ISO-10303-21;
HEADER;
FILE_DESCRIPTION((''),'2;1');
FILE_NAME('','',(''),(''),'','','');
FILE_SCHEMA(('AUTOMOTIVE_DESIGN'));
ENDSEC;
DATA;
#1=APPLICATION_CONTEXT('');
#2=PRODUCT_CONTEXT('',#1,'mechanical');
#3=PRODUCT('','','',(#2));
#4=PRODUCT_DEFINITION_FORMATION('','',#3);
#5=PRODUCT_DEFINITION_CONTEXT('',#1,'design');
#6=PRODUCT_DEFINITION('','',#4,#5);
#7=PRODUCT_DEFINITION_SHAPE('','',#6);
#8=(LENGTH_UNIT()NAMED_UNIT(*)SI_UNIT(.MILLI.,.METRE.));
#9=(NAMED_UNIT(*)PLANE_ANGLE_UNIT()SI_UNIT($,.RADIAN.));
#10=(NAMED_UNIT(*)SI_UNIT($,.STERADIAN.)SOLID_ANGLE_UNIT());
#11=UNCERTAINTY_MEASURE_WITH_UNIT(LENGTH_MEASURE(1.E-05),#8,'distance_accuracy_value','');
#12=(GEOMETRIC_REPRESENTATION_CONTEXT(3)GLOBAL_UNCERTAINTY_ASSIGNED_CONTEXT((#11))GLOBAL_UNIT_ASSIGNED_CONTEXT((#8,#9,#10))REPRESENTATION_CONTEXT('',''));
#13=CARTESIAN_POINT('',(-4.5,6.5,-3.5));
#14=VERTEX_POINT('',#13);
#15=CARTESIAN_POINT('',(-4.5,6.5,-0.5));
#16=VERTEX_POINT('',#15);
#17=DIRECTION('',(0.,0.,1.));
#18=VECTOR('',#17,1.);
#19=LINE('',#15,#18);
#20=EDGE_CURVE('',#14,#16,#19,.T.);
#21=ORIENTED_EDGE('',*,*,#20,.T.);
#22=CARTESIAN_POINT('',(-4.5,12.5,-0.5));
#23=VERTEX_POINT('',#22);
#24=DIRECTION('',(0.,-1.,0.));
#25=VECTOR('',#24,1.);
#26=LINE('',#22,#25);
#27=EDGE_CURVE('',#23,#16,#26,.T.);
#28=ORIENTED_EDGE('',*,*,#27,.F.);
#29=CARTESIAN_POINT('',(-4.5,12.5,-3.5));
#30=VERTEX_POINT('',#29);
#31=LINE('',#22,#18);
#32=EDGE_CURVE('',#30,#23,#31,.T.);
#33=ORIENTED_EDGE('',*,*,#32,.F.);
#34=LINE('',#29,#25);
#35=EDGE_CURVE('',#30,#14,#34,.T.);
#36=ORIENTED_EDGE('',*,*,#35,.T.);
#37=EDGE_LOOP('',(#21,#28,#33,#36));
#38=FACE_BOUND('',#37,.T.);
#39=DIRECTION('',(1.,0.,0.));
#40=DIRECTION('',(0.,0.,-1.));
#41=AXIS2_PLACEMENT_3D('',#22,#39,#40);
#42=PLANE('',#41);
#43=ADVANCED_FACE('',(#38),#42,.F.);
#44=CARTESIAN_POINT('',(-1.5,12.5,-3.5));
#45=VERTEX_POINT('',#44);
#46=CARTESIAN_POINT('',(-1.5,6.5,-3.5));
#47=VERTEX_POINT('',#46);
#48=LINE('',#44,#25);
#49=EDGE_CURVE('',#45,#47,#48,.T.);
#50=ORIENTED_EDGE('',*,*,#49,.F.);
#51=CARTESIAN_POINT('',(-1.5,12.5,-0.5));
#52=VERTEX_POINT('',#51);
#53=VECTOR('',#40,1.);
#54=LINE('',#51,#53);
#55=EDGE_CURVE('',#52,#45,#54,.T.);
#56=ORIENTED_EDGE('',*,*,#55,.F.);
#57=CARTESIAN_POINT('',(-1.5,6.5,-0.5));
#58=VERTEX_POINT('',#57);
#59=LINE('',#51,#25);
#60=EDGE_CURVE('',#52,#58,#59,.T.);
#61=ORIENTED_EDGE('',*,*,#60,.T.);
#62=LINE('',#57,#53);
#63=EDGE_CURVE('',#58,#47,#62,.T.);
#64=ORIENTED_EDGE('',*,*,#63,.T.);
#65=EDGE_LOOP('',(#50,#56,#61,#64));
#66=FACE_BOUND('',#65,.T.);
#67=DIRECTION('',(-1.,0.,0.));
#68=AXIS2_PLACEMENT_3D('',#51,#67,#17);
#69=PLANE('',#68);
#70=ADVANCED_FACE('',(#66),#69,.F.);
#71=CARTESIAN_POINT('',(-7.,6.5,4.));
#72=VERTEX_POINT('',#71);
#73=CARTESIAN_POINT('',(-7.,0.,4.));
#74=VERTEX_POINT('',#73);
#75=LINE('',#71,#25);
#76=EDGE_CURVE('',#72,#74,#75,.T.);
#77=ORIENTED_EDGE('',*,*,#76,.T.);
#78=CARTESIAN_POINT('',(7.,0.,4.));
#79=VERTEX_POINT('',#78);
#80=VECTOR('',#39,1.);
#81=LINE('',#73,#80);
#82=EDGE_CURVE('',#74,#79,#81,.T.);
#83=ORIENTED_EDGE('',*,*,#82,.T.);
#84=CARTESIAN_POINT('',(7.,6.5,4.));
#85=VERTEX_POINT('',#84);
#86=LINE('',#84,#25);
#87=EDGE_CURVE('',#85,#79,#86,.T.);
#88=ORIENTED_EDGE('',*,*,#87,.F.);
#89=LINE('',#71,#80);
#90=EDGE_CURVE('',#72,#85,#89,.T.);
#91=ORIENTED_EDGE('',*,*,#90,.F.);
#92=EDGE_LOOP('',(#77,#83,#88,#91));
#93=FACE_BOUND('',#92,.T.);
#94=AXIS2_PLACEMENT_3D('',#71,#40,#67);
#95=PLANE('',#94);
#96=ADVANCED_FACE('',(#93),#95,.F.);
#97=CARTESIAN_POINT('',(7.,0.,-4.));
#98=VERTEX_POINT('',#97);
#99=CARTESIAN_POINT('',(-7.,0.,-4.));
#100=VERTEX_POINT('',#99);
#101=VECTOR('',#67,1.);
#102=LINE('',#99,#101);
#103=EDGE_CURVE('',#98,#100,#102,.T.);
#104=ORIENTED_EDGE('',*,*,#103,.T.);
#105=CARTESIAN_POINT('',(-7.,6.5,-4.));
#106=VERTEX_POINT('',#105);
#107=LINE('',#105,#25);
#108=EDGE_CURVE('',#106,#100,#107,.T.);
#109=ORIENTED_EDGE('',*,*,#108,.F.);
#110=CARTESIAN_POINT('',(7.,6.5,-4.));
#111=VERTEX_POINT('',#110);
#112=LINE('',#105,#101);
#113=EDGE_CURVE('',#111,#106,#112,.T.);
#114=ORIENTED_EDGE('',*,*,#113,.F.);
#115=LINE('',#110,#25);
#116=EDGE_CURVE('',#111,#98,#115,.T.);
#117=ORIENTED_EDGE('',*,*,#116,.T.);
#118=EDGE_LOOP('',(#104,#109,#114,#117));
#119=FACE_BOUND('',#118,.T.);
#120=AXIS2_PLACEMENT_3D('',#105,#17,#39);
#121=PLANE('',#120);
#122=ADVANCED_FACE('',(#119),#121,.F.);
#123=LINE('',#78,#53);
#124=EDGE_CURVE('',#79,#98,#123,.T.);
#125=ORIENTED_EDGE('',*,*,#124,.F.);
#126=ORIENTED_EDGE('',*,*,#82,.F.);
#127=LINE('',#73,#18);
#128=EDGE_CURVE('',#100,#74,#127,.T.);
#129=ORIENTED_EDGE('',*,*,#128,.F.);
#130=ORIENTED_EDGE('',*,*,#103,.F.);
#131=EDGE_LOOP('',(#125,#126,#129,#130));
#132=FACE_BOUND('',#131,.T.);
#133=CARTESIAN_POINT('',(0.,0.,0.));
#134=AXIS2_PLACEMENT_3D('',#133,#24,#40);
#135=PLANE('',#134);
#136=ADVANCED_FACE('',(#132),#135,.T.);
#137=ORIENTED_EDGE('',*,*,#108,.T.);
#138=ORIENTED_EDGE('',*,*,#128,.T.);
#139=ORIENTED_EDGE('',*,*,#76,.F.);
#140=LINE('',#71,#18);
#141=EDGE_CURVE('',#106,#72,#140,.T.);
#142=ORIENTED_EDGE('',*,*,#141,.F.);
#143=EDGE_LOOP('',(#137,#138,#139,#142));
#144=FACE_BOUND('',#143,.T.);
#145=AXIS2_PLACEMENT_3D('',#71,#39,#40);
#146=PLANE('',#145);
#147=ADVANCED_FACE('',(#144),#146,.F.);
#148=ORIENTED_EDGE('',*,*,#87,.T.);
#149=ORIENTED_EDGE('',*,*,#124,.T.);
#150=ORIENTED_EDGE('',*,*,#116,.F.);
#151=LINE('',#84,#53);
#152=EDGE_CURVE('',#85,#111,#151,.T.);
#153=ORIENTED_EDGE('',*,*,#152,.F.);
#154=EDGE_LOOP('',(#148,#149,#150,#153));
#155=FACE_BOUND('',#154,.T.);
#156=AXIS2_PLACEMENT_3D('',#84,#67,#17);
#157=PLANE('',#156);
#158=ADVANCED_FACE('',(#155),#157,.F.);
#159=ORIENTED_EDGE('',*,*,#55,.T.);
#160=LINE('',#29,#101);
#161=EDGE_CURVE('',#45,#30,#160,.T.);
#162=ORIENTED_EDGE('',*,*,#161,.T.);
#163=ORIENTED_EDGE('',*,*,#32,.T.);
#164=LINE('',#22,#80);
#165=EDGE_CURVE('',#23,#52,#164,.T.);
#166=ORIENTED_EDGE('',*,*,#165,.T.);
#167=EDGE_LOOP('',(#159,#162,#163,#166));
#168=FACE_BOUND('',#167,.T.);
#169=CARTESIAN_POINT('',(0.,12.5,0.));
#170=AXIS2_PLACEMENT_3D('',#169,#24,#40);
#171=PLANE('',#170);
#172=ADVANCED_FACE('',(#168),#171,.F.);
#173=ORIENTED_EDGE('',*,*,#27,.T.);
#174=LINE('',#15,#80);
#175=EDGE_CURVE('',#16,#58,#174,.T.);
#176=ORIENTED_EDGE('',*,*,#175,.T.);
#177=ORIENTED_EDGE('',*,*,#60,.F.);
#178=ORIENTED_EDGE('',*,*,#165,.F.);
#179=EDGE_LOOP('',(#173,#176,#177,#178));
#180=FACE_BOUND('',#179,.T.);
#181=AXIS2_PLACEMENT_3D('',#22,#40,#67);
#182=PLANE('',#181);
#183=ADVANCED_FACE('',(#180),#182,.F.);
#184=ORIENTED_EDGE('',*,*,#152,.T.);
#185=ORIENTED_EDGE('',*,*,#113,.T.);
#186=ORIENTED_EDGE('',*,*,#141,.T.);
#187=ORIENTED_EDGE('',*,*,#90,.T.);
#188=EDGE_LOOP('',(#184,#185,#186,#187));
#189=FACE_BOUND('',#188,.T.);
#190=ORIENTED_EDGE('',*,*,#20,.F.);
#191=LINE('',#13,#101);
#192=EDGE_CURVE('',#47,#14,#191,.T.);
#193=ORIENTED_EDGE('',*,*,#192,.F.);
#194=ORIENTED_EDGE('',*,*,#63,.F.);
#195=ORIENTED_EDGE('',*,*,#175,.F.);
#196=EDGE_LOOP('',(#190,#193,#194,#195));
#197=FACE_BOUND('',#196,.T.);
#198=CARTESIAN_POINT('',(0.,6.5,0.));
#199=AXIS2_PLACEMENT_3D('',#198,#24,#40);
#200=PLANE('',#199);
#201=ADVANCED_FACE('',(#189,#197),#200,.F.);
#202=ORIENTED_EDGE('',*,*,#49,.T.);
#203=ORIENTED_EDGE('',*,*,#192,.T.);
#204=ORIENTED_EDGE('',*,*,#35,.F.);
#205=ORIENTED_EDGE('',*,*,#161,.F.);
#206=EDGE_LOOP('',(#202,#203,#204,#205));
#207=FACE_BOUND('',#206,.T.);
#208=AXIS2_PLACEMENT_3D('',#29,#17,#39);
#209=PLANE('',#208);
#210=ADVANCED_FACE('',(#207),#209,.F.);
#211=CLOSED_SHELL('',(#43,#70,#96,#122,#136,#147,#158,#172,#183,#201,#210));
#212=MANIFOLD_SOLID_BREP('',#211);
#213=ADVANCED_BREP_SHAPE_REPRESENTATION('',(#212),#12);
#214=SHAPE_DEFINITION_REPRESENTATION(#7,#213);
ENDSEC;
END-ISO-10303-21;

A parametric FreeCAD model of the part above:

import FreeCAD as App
import Part
import Sketcher

V = App.Vector


def add_polygon(sketch, points):
    """Adds a closed chain of lines whose ends are joined by coincident constraints."""
    first, n = sketch.GeometryCount, len(points)
    for a, b in zip(points, points[1:] + points[:1]):
        sketch.addGeometry(Part.LineSegment(App.Vector(*a, 0), App.Vector(*b, 0)), False)
    for i in range(n):
        sketch.addConstraint(Sketcher.Constraint("Coincident", first + i, 2, first + (i + 1) % n, 1))

doc = App.newDocument("Part")
body = doc.addObject("PartDesign::Body", "Body")

sketch1 = body.newObject("Sketcher::SketchObject", "Sketch")
sketch1.AttachmentSupport = (doc.getObject("XZ_Plane"), [""])
sketch1.MapMode = "FlatFace"
add_polygon(sketch1, [(-7, -4), (-7, 4), (7, 4), (7, -4)])
sketch1.addConstraint(Sketcher.Constraint("Vertical", 0))
sketch1.addConstraint(Sketcher.Constraint("Horizontal", 1))
sketch1.addConstraint(Sketcher.Constraint("Vertical", 2))
sketch1.addConstraint(Sketcher.Constraint("Horizontal", 3))
sketch1.addConstraint(Sketcher.Constraint("Symmetric", 0, 2, 2, 2, -1, 1))
sketch1.addConstraint(Sketcher.Constraint("DistanceX", 1, 1, 1, 2, 14.0))
sketch1.addConstraint(Sketcher.Constraint("DistanceY", 0, 1, 0, 2, 8.0))
pad1 = body.newObject("PartDesign::Pad", "Pad")
pad1.Profile = sketch1
pad1.Length = 6.5
pad1.Reversed = True

sketch2 = body.newObject("Sketcher::SketchObject", "Sketch001")
sketch2.AttachmentSupport = (doc.getObject("XZ_Plane"), [""])
sketch2.MapMode = "FlatFace"
sketch2.AttachmentOffset = App.Placement(V(0, 0, -6.5), App.Rotation())
add_polygon(sketch2, [(-4.5, -3.5), (-4.5, -0.5), (-1.5, -0.5), (-1.5, -3.5)])
sketch2.addConstraint(Sketcher.Constraint("Vertical", 0))
sketch2.addConstraint(Sketcher.Constraint("Horizontal", 1))
sketch2.addConstraint(Sketcher.Constraint("Vertical", 2))
sketch2.addConstraint(Sketcher.Constraint("Horizontal", 3))
sketch2.addConstraint(Sketcher.Constraint("Equal", 3, 0))
sketch2.addConstraint(Sketcher.Constraint("DistanceX", 1, 1, 1, 2, 3.0))
sketch2.addConstraint(Sketcher.Constraint("DistanceX", 0, 2, -1, 1, 4.5))
sketch2.addConstraint(Sketcher.Constraint("DistanceY", 0, 2, -1, 1, 0.5))
pad2 = body.newObject("PartDesign::Pad", "Pad001")
pad2.Profile = sketch2
pad2.Length = 6
pad2.Reversed = True

doc.recompute()
